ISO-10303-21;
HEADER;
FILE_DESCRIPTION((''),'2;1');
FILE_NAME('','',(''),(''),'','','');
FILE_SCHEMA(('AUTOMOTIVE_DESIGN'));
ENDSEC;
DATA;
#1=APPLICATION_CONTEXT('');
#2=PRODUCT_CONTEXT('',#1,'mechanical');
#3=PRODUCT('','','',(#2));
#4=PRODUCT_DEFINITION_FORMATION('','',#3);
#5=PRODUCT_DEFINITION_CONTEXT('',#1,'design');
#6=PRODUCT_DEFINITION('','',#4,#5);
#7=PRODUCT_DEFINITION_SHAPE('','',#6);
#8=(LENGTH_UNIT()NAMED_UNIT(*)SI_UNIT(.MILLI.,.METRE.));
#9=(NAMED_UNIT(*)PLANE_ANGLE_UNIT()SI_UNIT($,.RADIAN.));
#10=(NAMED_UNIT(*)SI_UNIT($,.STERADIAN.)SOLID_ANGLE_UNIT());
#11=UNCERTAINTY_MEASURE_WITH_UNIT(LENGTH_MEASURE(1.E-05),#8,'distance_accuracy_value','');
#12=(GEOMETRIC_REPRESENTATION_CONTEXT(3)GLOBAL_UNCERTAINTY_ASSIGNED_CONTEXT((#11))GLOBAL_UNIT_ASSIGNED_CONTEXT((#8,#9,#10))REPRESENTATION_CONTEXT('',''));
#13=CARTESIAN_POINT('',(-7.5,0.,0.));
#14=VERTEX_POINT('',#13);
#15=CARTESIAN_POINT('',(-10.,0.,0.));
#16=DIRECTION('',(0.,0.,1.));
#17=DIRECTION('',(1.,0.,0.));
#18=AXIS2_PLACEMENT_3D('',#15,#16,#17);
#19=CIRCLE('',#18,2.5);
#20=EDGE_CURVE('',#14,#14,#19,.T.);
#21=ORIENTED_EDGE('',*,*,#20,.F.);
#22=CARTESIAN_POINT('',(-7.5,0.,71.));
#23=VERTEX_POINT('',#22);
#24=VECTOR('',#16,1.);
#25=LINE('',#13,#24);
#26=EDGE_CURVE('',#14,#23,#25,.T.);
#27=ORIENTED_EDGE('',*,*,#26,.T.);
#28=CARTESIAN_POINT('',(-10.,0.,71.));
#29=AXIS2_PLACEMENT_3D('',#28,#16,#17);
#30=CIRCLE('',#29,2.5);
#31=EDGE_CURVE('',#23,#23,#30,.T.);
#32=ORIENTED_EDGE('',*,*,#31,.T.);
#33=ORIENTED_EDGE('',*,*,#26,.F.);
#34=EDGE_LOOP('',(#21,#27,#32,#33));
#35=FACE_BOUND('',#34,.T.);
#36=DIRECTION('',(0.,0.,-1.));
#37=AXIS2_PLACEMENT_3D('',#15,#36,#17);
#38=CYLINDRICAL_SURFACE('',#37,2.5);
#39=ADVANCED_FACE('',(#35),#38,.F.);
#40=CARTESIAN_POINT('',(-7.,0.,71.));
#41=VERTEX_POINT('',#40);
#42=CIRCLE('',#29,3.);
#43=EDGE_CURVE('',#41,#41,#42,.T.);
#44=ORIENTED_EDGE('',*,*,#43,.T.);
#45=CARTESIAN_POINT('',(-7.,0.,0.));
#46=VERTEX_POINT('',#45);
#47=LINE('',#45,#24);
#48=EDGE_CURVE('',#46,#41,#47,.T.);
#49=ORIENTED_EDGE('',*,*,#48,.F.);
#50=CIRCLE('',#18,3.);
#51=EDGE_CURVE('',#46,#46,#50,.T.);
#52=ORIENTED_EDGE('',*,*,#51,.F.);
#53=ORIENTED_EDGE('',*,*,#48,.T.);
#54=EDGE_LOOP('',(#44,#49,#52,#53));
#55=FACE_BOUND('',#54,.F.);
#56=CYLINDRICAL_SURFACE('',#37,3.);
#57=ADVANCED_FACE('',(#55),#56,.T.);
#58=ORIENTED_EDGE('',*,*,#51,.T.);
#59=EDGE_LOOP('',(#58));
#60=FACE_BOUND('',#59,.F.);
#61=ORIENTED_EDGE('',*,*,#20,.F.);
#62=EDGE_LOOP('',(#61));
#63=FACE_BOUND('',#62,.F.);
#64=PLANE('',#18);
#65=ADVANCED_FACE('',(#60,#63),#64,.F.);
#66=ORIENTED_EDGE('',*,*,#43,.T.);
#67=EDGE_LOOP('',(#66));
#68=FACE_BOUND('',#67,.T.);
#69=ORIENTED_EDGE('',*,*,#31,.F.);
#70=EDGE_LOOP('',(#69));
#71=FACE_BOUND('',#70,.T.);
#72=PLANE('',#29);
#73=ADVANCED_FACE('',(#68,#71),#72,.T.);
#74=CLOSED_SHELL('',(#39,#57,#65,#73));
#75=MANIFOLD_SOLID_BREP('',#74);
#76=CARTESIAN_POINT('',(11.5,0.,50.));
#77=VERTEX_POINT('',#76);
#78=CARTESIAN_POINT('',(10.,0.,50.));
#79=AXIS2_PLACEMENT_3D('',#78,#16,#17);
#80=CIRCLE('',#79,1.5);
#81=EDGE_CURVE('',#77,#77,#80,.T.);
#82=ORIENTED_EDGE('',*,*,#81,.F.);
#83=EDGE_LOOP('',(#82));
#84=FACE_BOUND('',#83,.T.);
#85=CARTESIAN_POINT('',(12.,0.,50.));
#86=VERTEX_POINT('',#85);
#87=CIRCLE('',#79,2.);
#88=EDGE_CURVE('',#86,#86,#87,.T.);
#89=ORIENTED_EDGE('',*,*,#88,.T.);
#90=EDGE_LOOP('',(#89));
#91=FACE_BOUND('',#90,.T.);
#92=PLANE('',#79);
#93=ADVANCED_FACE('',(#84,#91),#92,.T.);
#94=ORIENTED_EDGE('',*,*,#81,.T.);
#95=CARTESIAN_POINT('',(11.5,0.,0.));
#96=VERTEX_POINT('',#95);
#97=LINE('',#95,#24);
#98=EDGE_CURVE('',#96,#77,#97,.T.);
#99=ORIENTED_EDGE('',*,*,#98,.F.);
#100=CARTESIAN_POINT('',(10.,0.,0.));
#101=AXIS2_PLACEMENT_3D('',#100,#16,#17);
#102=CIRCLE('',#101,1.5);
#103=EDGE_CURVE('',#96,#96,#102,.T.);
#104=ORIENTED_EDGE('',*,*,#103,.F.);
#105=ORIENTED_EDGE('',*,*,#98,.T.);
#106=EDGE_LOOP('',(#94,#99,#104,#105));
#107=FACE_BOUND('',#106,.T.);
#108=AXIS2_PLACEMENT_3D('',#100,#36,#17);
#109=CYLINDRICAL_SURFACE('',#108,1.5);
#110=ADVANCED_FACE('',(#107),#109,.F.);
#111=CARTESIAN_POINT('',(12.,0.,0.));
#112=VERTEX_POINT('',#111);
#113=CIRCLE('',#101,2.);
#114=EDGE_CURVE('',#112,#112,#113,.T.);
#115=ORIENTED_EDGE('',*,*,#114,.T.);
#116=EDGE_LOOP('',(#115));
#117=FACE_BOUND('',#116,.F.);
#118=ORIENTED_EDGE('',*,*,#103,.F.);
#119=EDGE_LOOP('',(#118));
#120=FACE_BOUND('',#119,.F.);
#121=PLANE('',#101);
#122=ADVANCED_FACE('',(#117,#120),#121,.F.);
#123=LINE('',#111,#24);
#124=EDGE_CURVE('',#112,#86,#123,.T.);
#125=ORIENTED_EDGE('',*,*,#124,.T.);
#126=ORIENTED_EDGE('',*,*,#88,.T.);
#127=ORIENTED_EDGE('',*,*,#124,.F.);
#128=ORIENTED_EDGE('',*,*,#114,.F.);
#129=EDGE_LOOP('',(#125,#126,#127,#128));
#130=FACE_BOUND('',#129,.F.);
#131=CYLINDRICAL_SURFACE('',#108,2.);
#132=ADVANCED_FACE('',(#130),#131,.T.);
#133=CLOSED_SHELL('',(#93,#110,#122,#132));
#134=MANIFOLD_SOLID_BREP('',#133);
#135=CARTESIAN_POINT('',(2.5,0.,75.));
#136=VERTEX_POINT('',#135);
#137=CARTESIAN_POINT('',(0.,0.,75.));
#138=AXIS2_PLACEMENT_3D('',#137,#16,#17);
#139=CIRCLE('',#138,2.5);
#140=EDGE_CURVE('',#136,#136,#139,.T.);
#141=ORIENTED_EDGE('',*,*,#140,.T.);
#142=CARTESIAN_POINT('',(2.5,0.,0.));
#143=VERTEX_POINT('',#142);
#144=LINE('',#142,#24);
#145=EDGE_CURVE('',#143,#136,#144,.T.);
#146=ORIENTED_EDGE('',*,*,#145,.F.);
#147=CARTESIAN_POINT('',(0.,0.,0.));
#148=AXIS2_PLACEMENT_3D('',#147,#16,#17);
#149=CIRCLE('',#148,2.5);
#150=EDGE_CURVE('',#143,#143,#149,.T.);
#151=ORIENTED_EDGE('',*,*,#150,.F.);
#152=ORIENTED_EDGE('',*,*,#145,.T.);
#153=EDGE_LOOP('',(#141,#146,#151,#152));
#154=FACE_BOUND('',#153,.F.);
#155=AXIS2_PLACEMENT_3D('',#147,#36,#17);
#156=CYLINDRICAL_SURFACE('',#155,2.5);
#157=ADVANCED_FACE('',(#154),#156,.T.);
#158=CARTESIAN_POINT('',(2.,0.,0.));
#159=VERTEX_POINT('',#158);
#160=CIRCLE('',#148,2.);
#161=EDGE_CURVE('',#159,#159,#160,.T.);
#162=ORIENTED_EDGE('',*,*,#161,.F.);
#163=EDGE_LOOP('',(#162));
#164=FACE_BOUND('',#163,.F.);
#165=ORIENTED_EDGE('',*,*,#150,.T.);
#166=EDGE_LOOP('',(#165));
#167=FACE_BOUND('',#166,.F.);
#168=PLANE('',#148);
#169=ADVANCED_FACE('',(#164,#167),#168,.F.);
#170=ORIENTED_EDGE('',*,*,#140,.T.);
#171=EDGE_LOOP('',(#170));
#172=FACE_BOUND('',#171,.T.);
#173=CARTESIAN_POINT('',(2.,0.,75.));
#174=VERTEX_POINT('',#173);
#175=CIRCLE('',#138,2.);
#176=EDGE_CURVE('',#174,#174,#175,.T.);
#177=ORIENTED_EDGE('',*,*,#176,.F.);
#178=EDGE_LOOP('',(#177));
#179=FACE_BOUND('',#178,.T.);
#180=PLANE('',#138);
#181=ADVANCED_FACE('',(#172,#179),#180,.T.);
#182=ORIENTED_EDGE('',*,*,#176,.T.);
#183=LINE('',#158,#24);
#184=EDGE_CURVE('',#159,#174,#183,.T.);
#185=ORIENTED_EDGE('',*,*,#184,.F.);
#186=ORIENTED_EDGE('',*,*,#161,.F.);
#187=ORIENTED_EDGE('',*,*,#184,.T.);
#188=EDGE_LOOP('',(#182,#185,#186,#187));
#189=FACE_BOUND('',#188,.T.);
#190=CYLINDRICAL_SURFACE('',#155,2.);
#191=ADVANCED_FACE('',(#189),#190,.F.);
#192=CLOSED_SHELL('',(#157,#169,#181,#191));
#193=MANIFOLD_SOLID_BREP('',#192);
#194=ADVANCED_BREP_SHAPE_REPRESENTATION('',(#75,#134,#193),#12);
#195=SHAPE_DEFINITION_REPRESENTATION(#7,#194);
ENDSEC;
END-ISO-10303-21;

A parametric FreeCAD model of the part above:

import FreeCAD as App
import Part
import Sketcher
Q = App.Units.Quantity

doc = App.newDocument("Part")
body = doc.addObject("PartDesign::Body", "Body")

# Sketch on XY plane
sketch1 = doc.addObject("Sketcher::SketchObject", "Sketch")
body.addObject(sketch1)
sketch1.AttachmentSupport = (doc.XY_Plane, [""])
sketch1.MapMode = "FlatFace"
sketch1.addGeometry([
    Part.Circle(App.Vector(-10, 0, 0), App.Vector(0, 0, 1), 3),
    Part.Circle(App.Vector(-10, 0, 0), App.Vector(0, 0, 1), 2.5),
], False)
sketch1.addConstraint([
    Sketcher.Constraint("Coincident", 1, 3, 0, 3),
    Sketcher.Constraint("PointOnObject", 0, 3, -1),
    Sketcher.Constraint("Diameter", 0, Q("6 mm")),
    Sketcher.Constraint("Diameter", 1, Q("5 mm")),
    Sketcher.Constraint("DistanceX", 0, 3, -1, 1, Q("10 mm")),
])
pad1 = doc.addObject("PartDesign::Pad", "Pad")
body.addObject(pad1)
pad1.Profile = sketch1
pad1.Length = 71
body2 = doc.addObject("PartDesign::Body", "Body001")

# Sketch on XY plane
sketch2 = doc.addObject("Sketcher::SketchObject", "Sketch001")
body2.addObject(sketch2)
sketch2.AttachmentSupport = (doc.getObject("XY_Plane001"), [""])
sketch2.MapMode = "FlatFace"
sketch2.addGeometry([
    Part.Circle(App.Vector(10, 0, 0), App.Vector(0, 0, 1), 2),
    Part.Circle(App.Vector(10, 0, 0), App.Vector(0, 0, 1), 1.5),
], False)
sketch2.addConstraint([
    Sketcher.Constraint("Coincident", 1, 3, 0, 3),
    Sketcher.Constraint("PointOnObject", 0, 3, -1),
    Sketcher.Constraint("Diameter", 0, Q("4 mm")),
    Sketcher.Constraint("Diameter", 1, Q("3 mm")),
    Sketcher.Constraint("DistanceX", -1, 1, 0, 3, Q("10 mm")),
])
pad2 = doc.addObject("PartDesign::Pad", "Pad001")
body2.addObject(pad2)
pad2.Profile = sketch2
pad2.Length = 50
body3 = doc.addObject("PartDesign::Body", "Body002")

# Sketch on XY plane
sketch3 = doc.addObject("Sketcher::SketchObject", "Sketch002")
body3.addObject(sketch3)
sketch3.AttachmentSupport = (doc.getObject("XY_Plane002"), [""])
sketch3.MapMode = "FlatFace"
sketch3.addGeometry([
    Part.Circle(App.Vector(0, 0, 0), App.Vector(0, 0, 1), 2.5),
    Part.Circle(App.Vector(0, 0, 0), App.Vector(0, 0, 1), 2),
], False)
sketch3.addConstraint([
    Sketcher.Constraint("Coincident", 0, 3, -1, 1),
    Sketcher.Constraint("Coincident", 1, 3, -1, 1),
    Sketcher.Constraint("Diameter", 0, Q("5 mm")),
    Sketcher.Constraint("Diameter", 1, Q("4 mm")),
])
pad3 = doc.addObject("PartDesign::Pad", "Pad002")
body3.addObject(pad3)
pad3.Profile = sketch3
pad3.Length = 75

doc.recompute()
